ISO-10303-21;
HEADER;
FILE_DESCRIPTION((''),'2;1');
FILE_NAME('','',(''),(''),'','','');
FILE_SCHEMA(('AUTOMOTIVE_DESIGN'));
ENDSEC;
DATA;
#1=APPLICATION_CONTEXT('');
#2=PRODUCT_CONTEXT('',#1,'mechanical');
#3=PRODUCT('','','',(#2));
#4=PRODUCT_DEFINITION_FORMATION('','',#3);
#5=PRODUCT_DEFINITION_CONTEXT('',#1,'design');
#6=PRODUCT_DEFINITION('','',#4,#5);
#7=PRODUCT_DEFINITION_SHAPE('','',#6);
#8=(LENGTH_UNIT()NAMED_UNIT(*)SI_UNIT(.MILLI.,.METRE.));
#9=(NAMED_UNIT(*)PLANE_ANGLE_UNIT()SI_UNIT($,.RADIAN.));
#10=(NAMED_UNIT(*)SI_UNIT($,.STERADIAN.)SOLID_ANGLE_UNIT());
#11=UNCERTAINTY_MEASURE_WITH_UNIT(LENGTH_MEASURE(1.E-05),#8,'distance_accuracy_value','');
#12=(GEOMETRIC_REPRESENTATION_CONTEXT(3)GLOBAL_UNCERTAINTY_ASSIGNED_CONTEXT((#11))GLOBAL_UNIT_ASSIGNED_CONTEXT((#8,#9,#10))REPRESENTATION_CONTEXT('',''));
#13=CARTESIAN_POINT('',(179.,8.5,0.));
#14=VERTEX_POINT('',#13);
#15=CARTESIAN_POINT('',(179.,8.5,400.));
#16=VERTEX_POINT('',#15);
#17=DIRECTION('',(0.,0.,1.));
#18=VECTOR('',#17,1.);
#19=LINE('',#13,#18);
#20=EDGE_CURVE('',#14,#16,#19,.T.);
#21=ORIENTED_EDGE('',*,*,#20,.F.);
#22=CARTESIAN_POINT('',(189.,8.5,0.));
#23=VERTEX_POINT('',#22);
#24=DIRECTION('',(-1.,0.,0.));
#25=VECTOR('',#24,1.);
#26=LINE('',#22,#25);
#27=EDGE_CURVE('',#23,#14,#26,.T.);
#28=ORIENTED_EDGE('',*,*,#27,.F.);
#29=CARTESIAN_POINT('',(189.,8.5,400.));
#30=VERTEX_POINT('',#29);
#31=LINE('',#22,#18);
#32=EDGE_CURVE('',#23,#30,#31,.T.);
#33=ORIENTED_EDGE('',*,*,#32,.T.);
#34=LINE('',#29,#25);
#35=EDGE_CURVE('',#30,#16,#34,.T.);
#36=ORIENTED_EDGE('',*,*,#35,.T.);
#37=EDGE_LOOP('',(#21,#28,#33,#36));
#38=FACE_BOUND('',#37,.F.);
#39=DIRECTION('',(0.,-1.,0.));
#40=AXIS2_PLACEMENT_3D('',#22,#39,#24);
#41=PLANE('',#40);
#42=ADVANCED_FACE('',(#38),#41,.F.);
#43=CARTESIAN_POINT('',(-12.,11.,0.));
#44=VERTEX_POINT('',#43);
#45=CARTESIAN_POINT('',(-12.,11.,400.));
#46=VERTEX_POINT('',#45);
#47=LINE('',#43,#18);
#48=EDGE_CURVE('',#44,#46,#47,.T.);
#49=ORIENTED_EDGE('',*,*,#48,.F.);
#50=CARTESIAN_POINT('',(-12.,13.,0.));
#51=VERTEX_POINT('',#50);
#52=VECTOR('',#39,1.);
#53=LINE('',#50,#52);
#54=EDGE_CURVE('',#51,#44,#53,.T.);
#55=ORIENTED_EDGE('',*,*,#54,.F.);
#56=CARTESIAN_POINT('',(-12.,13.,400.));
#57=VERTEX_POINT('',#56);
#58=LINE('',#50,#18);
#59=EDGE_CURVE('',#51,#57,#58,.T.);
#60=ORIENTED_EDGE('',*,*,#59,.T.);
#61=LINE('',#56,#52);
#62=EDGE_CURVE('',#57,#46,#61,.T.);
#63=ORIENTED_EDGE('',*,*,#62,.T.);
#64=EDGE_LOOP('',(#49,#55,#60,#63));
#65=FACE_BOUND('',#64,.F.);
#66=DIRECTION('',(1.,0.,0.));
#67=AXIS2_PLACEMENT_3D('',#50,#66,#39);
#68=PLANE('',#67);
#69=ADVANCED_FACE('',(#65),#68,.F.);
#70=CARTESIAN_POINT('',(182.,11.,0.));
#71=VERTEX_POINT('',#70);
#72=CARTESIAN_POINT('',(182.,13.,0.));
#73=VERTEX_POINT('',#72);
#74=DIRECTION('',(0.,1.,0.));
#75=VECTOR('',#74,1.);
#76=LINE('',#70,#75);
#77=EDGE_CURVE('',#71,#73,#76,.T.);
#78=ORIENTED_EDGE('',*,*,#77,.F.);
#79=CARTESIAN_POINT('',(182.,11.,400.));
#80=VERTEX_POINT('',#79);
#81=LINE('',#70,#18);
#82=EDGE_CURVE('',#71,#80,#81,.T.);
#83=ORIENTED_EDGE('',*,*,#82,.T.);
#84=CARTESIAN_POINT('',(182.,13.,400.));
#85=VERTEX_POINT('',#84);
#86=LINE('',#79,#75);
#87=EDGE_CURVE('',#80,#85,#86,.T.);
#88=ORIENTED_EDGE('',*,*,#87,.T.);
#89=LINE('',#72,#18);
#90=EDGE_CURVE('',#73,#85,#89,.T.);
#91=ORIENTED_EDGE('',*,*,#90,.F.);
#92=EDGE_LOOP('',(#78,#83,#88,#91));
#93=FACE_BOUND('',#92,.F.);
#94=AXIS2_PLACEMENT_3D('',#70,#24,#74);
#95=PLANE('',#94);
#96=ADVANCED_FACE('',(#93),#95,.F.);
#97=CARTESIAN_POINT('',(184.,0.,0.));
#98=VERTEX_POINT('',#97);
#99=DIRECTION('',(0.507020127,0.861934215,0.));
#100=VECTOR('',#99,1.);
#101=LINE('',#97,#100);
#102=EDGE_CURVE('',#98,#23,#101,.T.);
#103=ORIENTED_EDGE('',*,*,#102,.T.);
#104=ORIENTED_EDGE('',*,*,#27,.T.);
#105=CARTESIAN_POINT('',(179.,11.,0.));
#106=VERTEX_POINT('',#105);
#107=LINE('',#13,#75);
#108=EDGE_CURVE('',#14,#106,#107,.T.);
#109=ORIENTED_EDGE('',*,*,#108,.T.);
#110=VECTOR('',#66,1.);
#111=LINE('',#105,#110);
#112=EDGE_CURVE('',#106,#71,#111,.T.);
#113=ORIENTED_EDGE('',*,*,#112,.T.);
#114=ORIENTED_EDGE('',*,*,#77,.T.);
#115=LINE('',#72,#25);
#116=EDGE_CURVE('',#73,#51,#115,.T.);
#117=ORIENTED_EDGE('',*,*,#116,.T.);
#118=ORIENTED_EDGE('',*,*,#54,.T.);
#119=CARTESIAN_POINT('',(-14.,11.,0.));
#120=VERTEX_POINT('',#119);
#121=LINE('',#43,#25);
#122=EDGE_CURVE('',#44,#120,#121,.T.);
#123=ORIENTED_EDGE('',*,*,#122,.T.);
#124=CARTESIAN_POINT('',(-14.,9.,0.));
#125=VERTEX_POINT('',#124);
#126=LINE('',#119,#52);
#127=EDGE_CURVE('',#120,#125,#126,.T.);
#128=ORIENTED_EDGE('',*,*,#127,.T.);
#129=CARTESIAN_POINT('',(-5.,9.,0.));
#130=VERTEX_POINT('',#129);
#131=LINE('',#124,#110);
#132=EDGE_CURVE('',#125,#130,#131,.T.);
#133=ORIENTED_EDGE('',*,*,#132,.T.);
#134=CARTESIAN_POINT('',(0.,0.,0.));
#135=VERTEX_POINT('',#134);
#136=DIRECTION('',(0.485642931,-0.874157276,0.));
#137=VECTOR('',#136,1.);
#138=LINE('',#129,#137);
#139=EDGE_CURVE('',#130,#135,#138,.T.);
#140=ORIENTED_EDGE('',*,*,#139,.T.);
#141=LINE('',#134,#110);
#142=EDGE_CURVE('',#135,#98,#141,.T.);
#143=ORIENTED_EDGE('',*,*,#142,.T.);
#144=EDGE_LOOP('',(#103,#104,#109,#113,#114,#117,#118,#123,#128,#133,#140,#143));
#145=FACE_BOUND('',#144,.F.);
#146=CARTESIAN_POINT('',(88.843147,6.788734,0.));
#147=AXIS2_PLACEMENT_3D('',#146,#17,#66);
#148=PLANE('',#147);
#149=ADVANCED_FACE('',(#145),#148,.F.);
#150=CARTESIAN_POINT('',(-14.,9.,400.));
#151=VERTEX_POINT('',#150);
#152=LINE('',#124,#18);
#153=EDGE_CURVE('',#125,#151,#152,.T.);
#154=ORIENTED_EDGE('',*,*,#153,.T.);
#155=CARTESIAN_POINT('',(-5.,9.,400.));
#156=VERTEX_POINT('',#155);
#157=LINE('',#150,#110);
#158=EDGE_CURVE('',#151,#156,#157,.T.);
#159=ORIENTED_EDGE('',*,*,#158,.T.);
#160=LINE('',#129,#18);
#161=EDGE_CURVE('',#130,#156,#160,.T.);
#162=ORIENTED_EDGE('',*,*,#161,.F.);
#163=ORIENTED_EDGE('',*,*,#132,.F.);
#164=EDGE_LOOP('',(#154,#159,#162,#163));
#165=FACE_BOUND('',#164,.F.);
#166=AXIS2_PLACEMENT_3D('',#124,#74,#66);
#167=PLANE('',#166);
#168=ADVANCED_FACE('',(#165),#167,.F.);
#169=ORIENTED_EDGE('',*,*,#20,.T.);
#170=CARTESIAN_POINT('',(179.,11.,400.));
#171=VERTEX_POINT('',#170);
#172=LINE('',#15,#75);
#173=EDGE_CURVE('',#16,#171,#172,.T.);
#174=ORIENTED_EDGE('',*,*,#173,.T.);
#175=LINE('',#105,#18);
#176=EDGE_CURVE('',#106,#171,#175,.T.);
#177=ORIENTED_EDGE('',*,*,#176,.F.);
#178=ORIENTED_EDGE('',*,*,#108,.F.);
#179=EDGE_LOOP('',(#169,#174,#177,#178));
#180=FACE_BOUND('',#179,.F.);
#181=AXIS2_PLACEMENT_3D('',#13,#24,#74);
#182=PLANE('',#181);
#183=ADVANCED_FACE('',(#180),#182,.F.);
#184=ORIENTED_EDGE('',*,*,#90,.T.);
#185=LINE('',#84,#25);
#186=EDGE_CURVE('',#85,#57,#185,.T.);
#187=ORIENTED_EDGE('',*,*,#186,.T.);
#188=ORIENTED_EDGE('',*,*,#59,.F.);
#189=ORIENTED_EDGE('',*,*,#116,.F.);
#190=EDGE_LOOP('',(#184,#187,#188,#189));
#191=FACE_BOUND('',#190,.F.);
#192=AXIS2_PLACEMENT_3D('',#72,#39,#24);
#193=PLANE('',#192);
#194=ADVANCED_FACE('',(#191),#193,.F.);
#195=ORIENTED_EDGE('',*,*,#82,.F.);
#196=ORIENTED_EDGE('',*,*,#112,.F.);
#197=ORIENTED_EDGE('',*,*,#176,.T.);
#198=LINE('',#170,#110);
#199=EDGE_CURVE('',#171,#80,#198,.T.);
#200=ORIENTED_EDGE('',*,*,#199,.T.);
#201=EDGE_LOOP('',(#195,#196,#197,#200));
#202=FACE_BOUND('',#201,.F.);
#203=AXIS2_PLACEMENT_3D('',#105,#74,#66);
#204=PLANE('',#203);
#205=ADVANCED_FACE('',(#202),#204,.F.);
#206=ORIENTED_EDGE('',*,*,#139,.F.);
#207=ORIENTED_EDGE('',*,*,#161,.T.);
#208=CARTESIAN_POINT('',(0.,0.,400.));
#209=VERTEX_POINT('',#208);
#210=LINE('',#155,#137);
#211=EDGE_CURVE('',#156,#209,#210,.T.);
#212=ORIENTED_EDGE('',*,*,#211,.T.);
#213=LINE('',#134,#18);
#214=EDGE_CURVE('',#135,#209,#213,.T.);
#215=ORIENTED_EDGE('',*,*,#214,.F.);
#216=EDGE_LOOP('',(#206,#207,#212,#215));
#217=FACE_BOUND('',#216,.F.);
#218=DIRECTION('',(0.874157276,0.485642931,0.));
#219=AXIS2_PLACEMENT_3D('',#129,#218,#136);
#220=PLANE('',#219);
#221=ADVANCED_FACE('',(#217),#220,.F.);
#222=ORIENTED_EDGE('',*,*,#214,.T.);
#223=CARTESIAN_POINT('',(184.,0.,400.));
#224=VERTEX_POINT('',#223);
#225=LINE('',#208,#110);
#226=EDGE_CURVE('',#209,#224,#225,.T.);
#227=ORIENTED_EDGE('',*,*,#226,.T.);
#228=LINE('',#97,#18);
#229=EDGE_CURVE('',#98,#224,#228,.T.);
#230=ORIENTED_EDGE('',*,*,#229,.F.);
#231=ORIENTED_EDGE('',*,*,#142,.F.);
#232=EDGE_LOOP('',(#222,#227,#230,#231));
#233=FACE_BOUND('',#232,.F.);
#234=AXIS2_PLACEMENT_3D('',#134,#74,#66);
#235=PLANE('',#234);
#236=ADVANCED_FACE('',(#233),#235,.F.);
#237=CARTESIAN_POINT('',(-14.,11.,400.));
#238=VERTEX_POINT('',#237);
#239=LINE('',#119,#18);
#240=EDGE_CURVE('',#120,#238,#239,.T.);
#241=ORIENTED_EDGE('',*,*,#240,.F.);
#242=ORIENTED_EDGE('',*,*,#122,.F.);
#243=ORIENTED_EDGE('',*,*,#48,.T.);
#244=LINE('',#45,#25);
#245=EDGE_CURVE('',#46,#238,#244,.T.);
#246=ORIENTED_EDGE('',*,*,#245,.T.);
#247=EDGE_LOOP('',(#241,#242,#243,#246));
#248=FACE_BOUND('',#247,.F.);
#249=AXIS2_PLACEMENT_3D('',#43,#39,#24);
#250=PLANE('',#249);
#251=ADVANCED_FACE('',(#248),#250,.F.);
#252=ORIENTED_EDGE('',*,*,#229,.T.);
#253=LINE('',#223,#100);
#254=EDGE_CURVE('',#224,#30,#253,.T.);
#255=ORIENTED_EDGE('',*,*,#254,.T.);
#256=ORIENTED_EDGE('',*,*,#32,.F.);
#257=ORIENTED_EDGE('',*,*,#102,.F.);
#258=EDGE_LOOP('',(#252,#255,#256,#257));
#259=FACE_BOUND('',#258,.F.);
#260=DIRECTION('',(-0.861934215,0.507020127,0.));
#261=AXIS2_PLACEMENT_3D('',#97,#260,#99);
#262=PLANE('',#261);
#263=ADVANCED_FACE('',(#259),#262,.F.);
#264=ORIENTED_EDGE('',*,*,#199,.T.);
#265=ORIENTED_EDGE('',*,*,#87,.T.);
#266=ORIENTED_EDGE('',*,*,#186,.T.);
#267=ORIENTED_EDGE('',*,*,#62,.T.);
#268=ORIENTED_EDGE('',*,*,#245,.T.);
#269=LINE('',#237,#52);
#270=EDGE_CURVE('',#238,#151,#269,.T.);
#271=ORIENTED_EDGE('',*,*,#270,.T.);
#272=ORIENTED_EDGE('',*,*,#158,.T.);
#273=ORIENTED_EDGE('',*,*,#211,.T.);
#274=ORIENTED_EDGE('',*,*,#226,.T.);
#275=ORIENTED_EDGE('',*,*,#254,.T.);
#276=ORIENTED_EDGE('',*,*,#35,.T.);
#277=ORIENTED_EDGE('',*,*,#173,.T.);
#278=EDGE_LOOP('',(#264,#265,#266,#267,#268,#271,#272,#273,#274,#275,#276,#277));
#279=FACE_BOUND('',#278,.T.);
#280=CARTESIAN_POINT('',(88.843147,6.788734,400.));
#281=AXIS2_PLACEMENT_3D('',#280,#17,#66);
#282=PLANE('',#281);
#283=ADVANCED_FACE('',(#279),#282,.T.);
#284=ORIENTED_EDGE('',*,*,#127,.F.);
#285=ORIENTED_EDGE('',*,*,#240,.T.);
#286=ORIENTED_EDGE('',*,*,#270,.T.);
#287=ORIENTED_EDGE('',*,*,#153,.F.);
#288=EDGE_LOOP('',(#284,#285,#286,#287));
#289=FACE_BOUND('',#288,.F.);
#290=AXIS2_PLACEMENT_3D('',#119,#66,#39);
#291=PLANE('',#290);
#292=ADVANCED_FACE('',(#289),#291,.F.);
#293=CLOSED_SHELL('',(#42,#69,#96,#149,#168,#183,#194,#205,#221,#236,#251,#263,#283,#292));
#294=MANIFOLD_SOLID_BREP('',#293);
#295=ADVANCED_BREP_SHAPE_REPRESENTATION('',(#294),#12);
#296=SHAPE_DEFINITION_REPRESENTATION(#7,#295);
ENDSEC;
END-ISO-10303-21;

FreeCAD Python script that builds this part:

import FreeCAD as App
import Part
import Sketcher
from FreeCAD import Vector
Q = App.Units.Quantity


def add_polygon(sketch, points):
    """Adds a closed chain of lines whose ends are joined by coincident constraints."""
    first, n = sketch.GeometryCount, len(points)
    for a, b in zip(points, points[1:] + points[:1]):
        sketch.addGeometry(Part.LineSegment(App.Vector(*a, 0), App.Vector(*b, 0)), False)
    for i in range(n):
        sketch.addConstraint(Sketcher.Constraint("Coincident", first + i, 2, first + (i + 1) % n, 1))

doc = App.newDocument("Part")
params = doc.addObject("Spreadsheet::Sheet", "Params")
for row, (alias, value) in enumerate([
    ("sketch1_width", "184 mm"),
    ("sketch1_width2", "10 mm"),
    ("sketch1_width3", "3 mm"),
    ("sketch1_width4", "194 mm"),
    ("sketch1_width5", "2 mm"),
    ("pad1_length", "400 mm"),
], start=1):
    params.set(f"A{row}", alias)
    params.set(f"B{row}", "=" + value)
    params.setAlias(f"B{row}", alias)

body = doc.addObject("PartDesign::Body", "Body")

sketch1 = doc.addObject("Sketcher::SketchObject", "Sketch")
body.addObject(sketch1)
sketch1.AttachmentSupport = (doc.XY_Plane, [""])
sketch1.MapMode = "FlatFace"
add_polygon(sketch1, [(0, 0), (184, 0), (189, 8.5), (179, 8.5), (179, 11), (182, 11), (182, 13), (-12, 13), (-12, 11), (-14, 11), (-14, 9), (-5, 9)])
sketch1.addConstraint([
    Sketcher.Constraint("Horizontal", 0),
    Sketcher.Constraint("Horizontal", 2),
    Sketcher.Constraint("Vertical", 3),
    Sketcher.Constraint("Horizontal", 4),
    Sketcher.Constraint("Vertical", 5),
    Sketcher.Constraint("Horizontal", 6),
    Sketcher.Constraint("Vertical", 7),
    Sketcher.Constraint("Horizontal", 8),
    Sketcher.Constraint("Vertical", 9),
    Sketcher.Constraint("Horizontal", 10),
    Sketcher.Constraint("Coincident", 11, 2, -1, 1),
    Sketcher.Constraint("Horizontal", 4, 2, 7, 2),
    Sketcher.Constraint("Equal", 8, 5),
    Sketcher.Constraint("Equal", 7, 9),
    Sketcher.Constraint("DistanceX", 0, 1, 0, 2, Q("184 mm")),
    Sketcher.Constraint("DistanceX", 2, 2, 2, 1, Q("10 mm")),
    Sketcher.Constraint("DistanceX", 4, 1, 4, 2, Q("3 mm")),
    Sketcher.Constraint("DistanceX", 6, 2, 6, 1, Q("194 mm")),
    Sketcher.Constraint("DistanceX", 8, 2, 8, 1, Q("2 mm")),
    Sketcher.Constraint("DistanceX", 10, 1, 10, 2, Q("9 mm")),
    Sketcher.Constraint("DistanceY", 3, 1, 3, 2, Q("2.5 mm")),
    Sketcher.Constraint("DistanceX", -1, 1, 1, 2, Q("189 mm")),
    Sketcher.Constraint("DistanceY", -1, 1, 3, 2, Q("11 mm")),
])
sketch1.setExpression("Constraints[26]", "Params.sketch1_width")
sketch1.setExpression("Constraints[27]", "Params.sketch1_width2")
sketch1.setExpression("Constraints[28]", "Params.sketch1_width3")
sketch1.setExpression("Constraints[29]", "Params.sketch1_width4")
sketch1.setExpression("Constraints[30]", "Params.sketch1_width5")
pad1 = doc.addObject("PartDesign::Pad", "Pad")
body.addObject(pad1)
pad1.Profile = sketch1
pad1.setExpression("Length", "Params.pad1_length")

doc.recompute()
